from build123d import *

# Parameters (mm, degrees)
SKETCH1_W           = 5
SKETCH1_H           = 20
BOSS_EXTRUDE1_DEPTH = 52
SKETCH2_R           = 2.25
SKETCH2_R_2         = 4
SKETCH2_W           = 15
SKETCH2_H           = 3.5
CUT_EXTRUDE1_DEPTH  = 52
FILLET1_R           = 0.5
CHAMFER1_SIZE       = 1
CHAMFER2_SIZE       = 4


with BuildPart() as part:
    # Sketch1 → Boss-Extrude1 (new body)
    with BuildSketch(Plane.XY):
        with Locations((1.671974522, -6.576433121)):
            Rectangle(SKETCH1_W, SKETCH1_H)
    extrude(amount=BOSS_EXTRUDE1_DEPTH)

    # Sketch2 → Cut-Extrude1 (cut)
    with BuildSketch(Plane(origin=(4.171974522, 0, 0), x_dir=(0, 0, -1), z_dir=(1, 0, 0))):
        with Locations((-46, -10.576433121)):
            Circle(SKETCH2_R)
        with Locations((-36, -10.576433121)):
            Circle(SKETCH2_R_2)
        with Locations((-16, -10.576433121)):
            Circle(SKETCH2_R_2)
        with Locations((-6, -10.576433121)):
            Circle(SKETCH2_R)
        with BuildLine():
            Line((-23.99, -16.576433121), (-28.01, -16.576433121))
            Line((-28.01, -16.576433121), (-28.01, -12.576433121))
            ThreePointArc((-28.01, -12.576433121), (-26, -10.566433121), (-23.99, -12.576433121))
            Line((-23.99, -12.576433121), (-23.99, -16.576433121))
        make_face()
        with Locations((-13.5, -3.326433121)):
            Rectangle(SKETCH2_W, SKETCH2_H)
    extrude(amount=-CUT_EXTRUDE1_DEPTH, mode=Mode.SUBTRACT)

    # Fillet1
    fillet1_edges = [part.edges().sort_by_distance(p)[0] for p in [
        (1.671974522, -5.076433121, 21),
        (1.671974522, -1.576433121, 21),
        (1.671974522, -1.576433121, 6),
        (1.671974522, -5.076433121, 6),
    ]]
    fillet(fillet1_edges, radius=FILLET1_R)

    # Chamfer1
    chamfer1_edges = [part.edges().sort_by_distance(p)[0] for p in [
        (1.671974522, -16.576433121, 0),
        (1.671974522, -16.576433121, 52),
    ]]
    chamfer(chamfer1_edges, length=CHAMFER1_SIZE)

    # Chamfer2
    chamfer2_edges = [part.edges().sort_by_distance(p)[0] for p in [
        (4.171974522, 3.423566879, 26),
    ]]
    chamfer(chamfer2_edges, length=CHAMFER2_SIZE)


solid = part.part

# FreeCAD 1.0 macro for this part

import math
import FreeCAD as App
import Part
import Sketcher


def edges_at(feature, points):
    """Names of the edges that pass closest to the given points."""
    edges = feature.Shape.Edges
    near = lambda p: min(range(len(edges)), key=lambda i: edges[i].distToShape(Part.Vertex(*p))[0])
    return sorted({f"Edge{near(p) + 1}" for p in points})


def add_polygon(sketch, points):
    """Adds a closed chain of lines whose ends are joined by coincident constraints."""
    first, n = sketch.GeometryCount, len(points)
    for a, b in zip(points, points[1:] + points[:1]):
        sketch.addGeometry(Part.LineSegment(App.Vector(*a, 0), App.Vector(*b, 0)), False)
    for i in range(n):
        sketch.addConstraint(Sketcher.Constraint("Coincident", first + i, 2, first + (i + 1) % n, 1))

doc = App.newDocument("Part")
params = doc.addObject("Spreadsheet::Sheet", "Params")
for row, (alias, value) in enumerate([
    ("sketch1_width", "5 mm"),
    ("sketch1_height", "20 mm"),
    ("pad1_length", "52 mm"),
    ("sketch2_diameter", "8 mm"),
    ("sketch2_diameter2", "4.5 mm"),
    ("sketch2_width", "4 mm"),
    ("sketch2_height", "15 mm"),
    ("sketch2_radius", "2.01 mm"),
    ("pocket1_length", "52 mm"),
    ("fillet_radius", "0.5 mm"),
    ("chamfer_size", "1 mm"),
    ("chamfer2_size", "4 mm"),
], start=1):
    params.set(f"A{row}", alias)
    params.set(f"B{row}", "=" + value)
    params.setAlias(f"B{row}", alias)

body = doc.addObject("PartDesign::Body", "Body")

# Sketch on XY plane
sketch1 = doc.addObject("Sketcher::SketchObject", "Sketch")
body.addObject(sketch1)
sketch1.AttachmentSupport = (doc.XY_Plane, [""])
sketch1.MapMode = "FlatFace"
add_polygon(sketch1, [(-0.828025, 3.423567), (-0.828025, -16.576433), (4.171975, -16.576433), (4.171975, 3.423567)])  # lines 0-3
sketch1.addConstraint([
    Sketcher.Constraint("Vertical", 0),
    Sketcher.Constraint("Horizontal", 1),
    Sketcher.Constraint("Vertical", 2),
    Sketcher.Constraint("Horizontal", 3),
    Sketcher.Constraint("DistanceX", 1, 1, 1, 2, 5.0),
    Sketcher.Constraint("DistanceY", 0, 2, 0, 1, 20.0),
    Sketcher.Constraint("DistanceX", 0, 2, -1, 1, 0.828025),
    Sketcher.Constraint("DistanceY", 0, 2, -1, 1, 16.576433),
])
sketch1.setExpression("Constraints[8]", "Params.sketch1_width")
sketch1.setExpression("Constraints[9]", "Params.sketch1_height")
pad1 = doc.addObject("PartDesign::Pad", "Pad")
body.addObject(pad1)
pad1.Profile = sketch1
pad1.setExpression("Length", "Params.pad1_length")

# Sketch on YZ plane
sketch2 = doc.addObject("Sketcher::SketchObject", "Sketch001")
body.addObject(sketch2)
sketch2.AttachmentSupport = (doc.YZ_Plane, [""])
sketch2.MapMode = "FlatFace"
sketch2.AttachmentOffset = App.Placement(App.Vector(0, 0, 4.171975), App.Rotation())
sketch2.addGeometry(Part.Circle(App.Vector(-10.576433, 46, 0), App.Vector(0, 0, 1), 2.25), False)  # 0
sketch2.addGeometry(Part.Circle(App.Vector(-10.576433, 36, 0), App.Vector(0, 0, 1), 4), False)  # 1
sketch2.addGeometry(Part.Circle(App.Vector(-10.576433, 16, 0), App.Vector(0, 0, 1), 4), False)  # 2
sketch2.addGeometry(Part.Circle(App.Vector(-10.576433, 6, 0), App.Vector(0, 0, 1), 2.25), False)  # 3
sketch2.addGeometry(Part.LineSegment(App.Vector(-16.576433, 28.01, 0), App.Vector(-16.576433, 23.99, 0)), False)  # 4
sketch2.addGeometry(Part.LineSegment(App.Vector(-16.576433, 23.99, 0), App.Vector(-12.576433, 23.99, 0)), False)  # 5
sketch2.addGeometry(Part.ArcOfCircle(Part.Circle(App.Vector(-12.576433, 26, 0), App.Vector(0, 0, 1), 2.01), math.radians(-90), math.radians(90)), False)  # 6
sketch2.addGeometry(Part.LineSegment(App.Vector(-12.576433, 28.01, 0), App.Vector(-16.576433, 28.01, 0)), False)  # 7
add_polygon(sketch2, [(-1.576433, 21), (-5.076433, 21), (-5.076433, 6), (-1.576433, 6)])  # lines 8-11
sketch2.addConstraint([
    Sketcher.Constraint("Coincident", 4, 2, 5, 1),
    Sketcher.Constraint("Tangent", 5, 2, 6, 1),
    Sketcher.Constraint("Tangent", 6, 2, 7, 1),
    Sketcher.Constraint("Coincident", 7, 2, 4, 1),
    Sketcher.Constraint("Vertical", 4),
    Sketcher.Constraint("Horizontal", 5),
    Sketcher.Constraint("Horizontal", 7),
    Sketcher.Constraint("Horizontal", 8),
    Sketcher.Constraint("Vertical", 9),
    Sketcher.Constraint("Horizontal", 10),
    Sketcher.Constraint("Vertical", 11),
    Sketcher.Constraint("Equal", 1, 2),
    Sketcher.Constraint("Equal", 0, 3),
    Sketcher.Constraint("Horizontal", 3, 3, 9, 2),
    Sketcher.Constraint("Vertical", 0, 3, 1, 3),
    Sketcher.Constraint("Vertical", 1, 3, 2, 3),
    Sketcher.Constraint("Vertical", 2, 3, 3, 3),
    Sketcher.Constraint("Diameter", 1, 8.0),
    Sketcher.Constraint("Diameter", 0, 4.5),
    Sketcher.Constraint("DistanceX", 5, 1, 5, 2, 4.0),
    Sketcher.Constraint("DistanceY", 9, 2, 9, 1, 15.0),
    Sketcher.Constraint("Radius", 6, 2.01),
    Sketcher.Constraint("DistanceX", 8, 2, 8, 1, 3.5),
    Sketcher.Constraint("DistanceY", -1, 1, 0, 3, 46.0),
    Sketcher.Constraint("DistanceY", -1, 1, 1, 3, 36.0),
    Sketcher.Constraint("DistanceY", -1, 1, 2, 3, 16.0),
    Sketcher.Constraint("DistanceY", -1, 1, 3, 3, 6.0),
    Sketcher.Constraint("DistanceY", -1, 1, 6, 3, 26.0),
    Sketcher.Constraint("DistanceX", 6, 3, 1, 3, 2.0),
    Sketcher.Constraint("DistanceX", 3, 3, 10, 2, 9.0),
    Sketcher.Constraint("DistanceX", 0, 3, -1, 1, 10.576433),
])
sketch2.setExpression("Constraints[21]", "Params.sketch2_diameter")
sketch2.setExpression("Constraints[22]", "Params.sketch2_diameter2")
sketch2.setExpression("Constraints[23]", "Params.sketch2_width")
sketch2.setExpression("Constraints[24]", "Params.sketch2_height")
sketch2.setExpression("Constraints[25]", "Params.sketch2_radius")
pocket1 = doc.addObject("PartDesign::Pocket", "Pocket")
body.addObject(pocket1)
pocket1.Profile = sketch2
pocket1.setExpression("Length", "Params.pocket1_length")
doc.recompute()

fillet = doc.addObject("PartDesign::Fillet", "Fillet")
body.addObject(fillet)
fillet.Base = (pocket1, edges_at(pocket1, [
    (1.672, -5.076, 21),
    (1.672, -1.576, 21),
    (1.672, -1.576, 6),
    (1.672, -5.076, 6),
]))
fillet.setExpression("Radius", "Params.fillet_radius")
doc.recompute()

chamfer = doc.addObject("PartDesign::Chamfer", "Chamfer")
body.addObject(chamfer)
chamfer.Base = (fillet, edges_at(fillet, [(1.672, -16.576, 0), (1.672, -16.576, 52)]))
chamfer.setExpression("Size", "Params.chamfer_size")
doc.recompute()

chamfer2 = doc.addObject("PartDesign::Chamfer", "Chamfer001")
body.addObject(chamfer2)
chamfer2.Base = (chamfer, edges_at(chamfer, [(4.172, 3.424, 26)]))
chamfer2.setExpression("Size", "Params.chamfer2_size")

doc.recompute()
